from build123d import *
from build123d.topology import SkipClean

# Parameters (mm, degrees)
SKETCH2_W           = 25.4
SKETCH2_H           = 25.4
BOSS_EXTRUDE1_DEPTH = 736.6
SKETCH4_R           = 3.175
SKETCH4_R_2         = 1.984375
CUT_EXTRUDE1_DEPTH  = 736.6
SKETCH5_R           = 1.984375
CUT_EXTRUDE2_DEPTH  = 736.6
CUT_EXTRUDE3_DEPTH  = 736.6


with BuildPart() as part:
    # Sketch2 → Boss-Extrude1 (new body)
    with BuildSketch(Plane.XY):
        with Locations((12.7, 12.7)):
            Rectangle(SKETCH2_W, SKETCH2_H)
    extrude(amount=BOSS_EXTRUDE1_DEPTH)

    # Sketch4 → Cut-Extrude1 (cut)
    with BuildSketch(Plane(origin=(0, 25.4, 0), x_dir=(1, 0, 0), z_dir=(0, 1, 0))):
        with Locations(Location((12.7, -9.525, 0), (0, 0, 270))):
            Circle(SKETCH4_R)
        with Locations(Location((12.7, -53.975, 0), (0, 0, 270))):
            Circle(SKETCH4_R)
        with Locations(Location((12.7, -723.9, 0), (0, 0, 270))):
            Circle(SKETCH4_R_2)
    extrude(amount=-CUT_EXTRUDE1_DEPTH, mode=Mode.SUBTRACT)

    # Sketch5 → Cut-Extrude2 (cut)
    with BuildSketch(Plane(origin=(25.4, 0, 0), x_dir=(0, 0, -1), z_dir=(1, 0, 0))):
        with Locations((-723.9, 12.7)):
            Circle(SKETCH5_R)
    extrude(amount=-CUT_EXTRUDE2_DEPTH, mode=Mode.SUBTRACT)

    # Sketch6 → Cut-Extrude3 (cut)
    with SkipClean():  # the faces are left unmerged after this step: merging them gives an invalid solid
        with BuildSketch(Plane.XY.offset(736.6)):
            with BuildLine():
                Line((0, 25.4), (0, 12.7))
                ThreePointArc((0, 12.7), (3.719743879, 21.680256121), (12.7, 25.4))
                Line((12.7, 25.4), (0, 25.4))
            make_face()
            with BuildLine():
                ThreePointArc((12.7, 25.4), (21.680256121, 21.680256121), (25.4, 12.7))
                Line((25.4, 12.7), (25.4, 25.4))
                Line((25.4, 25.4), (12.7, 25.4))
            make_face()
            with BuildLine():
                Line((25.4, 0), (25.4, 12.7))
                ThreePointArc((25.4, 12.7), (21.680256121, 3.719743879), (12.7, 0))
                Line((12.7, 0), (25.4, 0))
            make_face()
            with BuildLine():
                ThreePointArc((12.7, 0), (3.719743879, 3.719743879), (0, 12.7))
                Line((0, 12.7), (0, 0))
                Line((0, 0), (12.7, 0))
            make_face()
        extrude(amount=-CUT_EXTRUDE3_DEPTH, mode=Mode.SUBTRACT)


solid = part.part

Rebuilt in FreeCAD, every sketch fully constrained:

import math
import FreeCAD as App
import Part
import Sketcher
Q = App.Units.Quantity

doc = App.newDocument("Part")
body = doc.addObject("PartDesign::Body", "Body")

# Sketch on XY plane
sketch1 = doc.addObject("Sketcher::SketchObject", "Sketch")
body.addObject(sketch1)
sketch1.AttachmentSupport = (doc.XY_Plane, [""])
sketch1.MapMode = "FlatFace"
sketch1.addGeometry(Part.LineSegment(App.Vector(0, 25, 0), App.Vector(0, 0, 0)), False)
sketch1.addGeometry(Part.LineSegment(App.Vector(0, 0, 0), App.Vector(25, 0, 0)), False)
sketch1.addGeometry(Part.LineSegment(App.Vector(25, 0, 0), App.Vector(25, 25, 0)), False)
sketch1.addGeometry(Part.LineSegment(App.Vector(25, 25, 0), App.Vector(0, 25, 0)), False)
sketch1.addConstraint(Sketcher.Constraint("Coincident", 0, 2, 1, 1))
sketch1.addConstraint(Sketcher.Constraint("Coincident", 1, 2, 2, 1))
sketch1.addConstraint(Sketcher.Constraint("Coincident", 2, 2, 3, 1))
sketch1.addConstraint(Sketcher.Constraint("Coincident", 3, 2, 0, 1))
sketch1.addConstraint(Sketcher.Constraint("Vertical", 0))
sketch1.addConstraint(Sketcher.Constraint("Horizontal", 1))
sketch1.addConstraint(Sketcher.Constraint("Vertical", 2))
sketch1.addConstraint(Sketcher.Constraint("Horizontal", 3))
sketch1.addConstraint(Sketcher.Constraint("Coincident", 0, 2, -1, 1))
sketch1.addConstraint(Sketcher.Constraint("Equal", 3, 0))
sketch1.addConstraint(Sketcher.Constraint("DistanceX", 1, 1, 1, 2, Q("1 in")))
pad1 = doc.addObject("PartDesign::Pad", "Pad")
body.addObject(pad1)
pad1.Profile = sketch1
pad1.Length = Q("29 in")

# Sketch on XZ plane
sketch2 = doc.addObject("Sketcher::SketchObject", "Sketch001")
body.addObject(sketch2)
sketch2.AttachmentSupport = (doc.XZ_Plane, [""])
sketch2.MapMode = "FlatFace"
sketch2.AttachmentOffset = App.Placement(App.Vector(0, 0, -1 * 25.4), App.Rotation())
sketch2.addGeometry(Part.Circle(App.Vector(12.7, 9.5, 0), App.Vector(0, 0, 1), 3.2), False)
sketch2.addGeometry(Part.Circle(App.Vector(12.7, 54, 0), App.Vector(0, 0, 1), 3.2), False)
sketch2.addGeometry(Part.Circle(App.Vector(12.7, 723.9, 0), App.Vector(0, 0, 1), 2), False)
sketch2.addConstraint(Sketcher.Constraint("Equal", 0, 1))
sketch2.addConstraint(Sketcher.Constraint("Vertical", 0, 3, 1, 3))
sketch2.addConstraint(Sketcher.Constraint("Vertical", 1, 3, 2, 3))
sketch2.addConstraint(Sketcher.Constraint("Diameter", 0, Q("0.25 in")))
sketch2.addConstraint(Sketcher.Constraint("Diameter", 2, Q("0.15625 in")))
sketch2.addConstraint(Sketcher.Constraint("DistanceX", -1, 1, 0, 3, Q("0.5 in")))
sketch2.addConstraint(Sketcher.Constraint("DistanceY", -1, 1, 2, 3, Q("28.5 in")))
sketch2.addConstraint(Sketcher.Constraint("DistanceY", 0, 3, 1, 3, Q("1.75 in")))
sketch2.addConstraint(Sketcher.Constraint("DistanceY", -1, 1, 0, 3, Q("0.375 in")))
pocket1 = doc.addObject("PartDesign::Pocket", "Pocket")
body.addObject(pocket1)
pocket1.Profile = sketch2
pocket1.Length = Q("29 in")
pocket1.Reversed = True

# Sketch on YZ plane
sketch3 = doc.addObject("Sketcher::SketchObject", "Sketch002")
body.addObject(sketch3)
sketch3.AttachmentSupport = (doc.YZ_Plane, [""])
sketch3.MapMode = "FlatFace"
sketch3.AttachmentOffset = App.Placement(App.Vector(0, 0, 1 * 25.4), App.Rotation())
sketch3.addGeometry(Part.Circle(App.Vector(12.7, 723.9, 0), App.Vector(0, 0, 1), 2), False)
sketch3.addConstraint(Sketcher.Constraint("Diameter", 0, Q("0.15625 in")))
sketch3.addConstraint(Sketcher.Constraint("DistanceX", -1, 1, 0, 3, Q("0.5 in")))
sketch3.addConstraint(Sketcher.Constraint("DistanceY", -1, 1, 0, 3, Q("28.5 in")))
pocket2 = doc.addObject("PartDesign::Pocket", "Pocket001")
body.addObject(pocket2)
pocket2.Profile = sketch3
pocket2.Length = Q("29 in")

# Sketch on XY plane
sketch4 = doc.addObject("Sketcher::SketchObject", "Sketch003")
body.addObject(sketch4)
sketch4.AttachmentSupport = (doc.XY_Plane, [""])
sketch4.MapMode = "FlatFace"
sketch4.AttachmentOffset = App.Placement(App.Vector(0, 0, 29 * 25.4), App.Rotation())
sketch4.addGeometry(Part.LineSegment(App.Vector(0, 25, 0), App.Vector(0, 13, 0)), False)
sketch4.addGeometry(Part.ArcOfCircle(Part.Circle(App.Vector(13, 13, 0), App.Vector(0, 0, 1), 13), math.radians(90), math.radians(180)), False)
sketch4.addGeometry(Part.LineSegment(App.Vector(13, 25, 0), App.Vector(0, 25, 0)), False)
sketch4.addGeometry(Part.ArcOfCircle(Part.Circle(App.Vector(13, 13, 0), App.Vector(0, 0, 1), 13), math.radians(0), math.radians(90)), False)
sketch4.addGeometry(Part.LineSegment(App.Vector(25, 13, 0), App.Vector(25, 25, 0)), False)
sketch4.addGeometry(Part.LineSegment(App.Vector(25, 25, 0), App.Vector(13, 25, 0)), False)
sketch4.addGeometry(Part.LineSegment(App.Vector(25, 0, 0), App.Vector(25, 13, 0)), False)
sketch4.addGeometry(Part.ArcOfCircle(Part.Circle(App.Vector(13, 13, 0), App.Vector(0, 0, 1), 13), math.radians(-90), math.radians(0)), False)
sketch4.addGeometry(Part.LineSegment(App.Vector(13, 0, 0), App.Vector(25, 0, 0)), False)
sketch4.addGeometry(Part.ArcOfCircle(Part.Circle(App.Vector(13, 13, 0), App.Vector(0, 0, 1), 13), math.radians(180), math.radians(270)), False)
sketch4.addGeometry(Part.LineSegment(App.Vector(0, 13, 0), App.Vector(0, 0, 0)), False)
sketch4.addGeometry(Part.LineSegment(App.Vector(0, 0, 0), App.Vector(13, 0, 0)), False)
sketch4.addConstraint(Sketcher.Constraint("Tangent", 0, 2, 1, 2))
sketch4.addConstraint(Sketcher.Constraint("Tangent", 1, 1, 2, 1))
sketch4.addConstraint(Sketcher.Constraint("Coincident", 2, 2, 0, 1))
sketch4.addConstraint(Sketcher.Constraint("Tangent", 3, 1, 4, 1))
sketch4.addConstraint(Sketcher.Constraint("Coincident", 4, 2, 5, 1))
sketch4.addConstraint(Sketcher.Constraint("Tangent", 5, 2, 3, 2))
sketch4.addConstraint(Sketcher.Constraint("Tangent", 6, 2, 7, 2))
sketch4.addConstraint(Sketcher.Constraint("Tangent", 7, 1, 8, 1))
sketch4.addConstraint(Sketcher.Constraint("Coincident", 8, 2, 6, 1))
sketch4.addConstraint(Sketcher.Constraint("Tangent", 9, 1, 10, 1))
sketch4.addConstraint(Sketcher.Constraint("Coincident", 10, 2, 11, 1))
sketch4.addConstraint(Sketcher.Constraint("Tangent", 11, 2, 9, 2))
sketch4.addConstraint(Sketcher.Constraint("Vertical", 0))
sketch4.addConstraint(Sketcher.Constraint("Horizontal", 2))
sketch4.addConstraint(Sketcher.Constraint("Vertical", 4))
sketch4.addConstraint(Sketcher.Constraint("Horizontal", 5))
sketch4.addConstraint(Sketcher.Constraint("Vertical", 6))
sketch4.addConstraint(Sketcher.Constraint("Horizontal", 8))
sketch4.addConstraint(Sketcher.Constraint("Vertical", 10))
sketch4.addConstraint(Sketcher.Constraint("Horizontal", 11))
sketch4.addConstraint(Sketcher.Constraint("Coincident", 10, 2, -1, 1))
sketch4.addConstraint(Sketcher.Constraint("Coincident", 3, 3, 1, 3))
sketch4.addConstraint(Sketcher.Constraint("Coincident", 7, 3, 1, 3))
sketch4.addConstraint(Sketcher.Constraint("Coincident", 9, 3, 1, 3))
sketch4.addConstraint(Sketcher.Constraint("Equal", 1, 3))
sketch4.addConstraint(Sketcher.Constraint("Equal", 3, 7))
sketch4.addConstraint(Sketcher.Constraint("Equal", 7, 9))
sketch4.addConstraint(Sketcher.Constraint("Radius", 1, Q("0.5 in")))
pocket3 = doc.addObject("PartDesign::Pocket", "Pocket002")
body.addObject(pocket3)
pocket3.Profile = sketch4
pocket3.Length = Q("29 in")

doc.recompute()
